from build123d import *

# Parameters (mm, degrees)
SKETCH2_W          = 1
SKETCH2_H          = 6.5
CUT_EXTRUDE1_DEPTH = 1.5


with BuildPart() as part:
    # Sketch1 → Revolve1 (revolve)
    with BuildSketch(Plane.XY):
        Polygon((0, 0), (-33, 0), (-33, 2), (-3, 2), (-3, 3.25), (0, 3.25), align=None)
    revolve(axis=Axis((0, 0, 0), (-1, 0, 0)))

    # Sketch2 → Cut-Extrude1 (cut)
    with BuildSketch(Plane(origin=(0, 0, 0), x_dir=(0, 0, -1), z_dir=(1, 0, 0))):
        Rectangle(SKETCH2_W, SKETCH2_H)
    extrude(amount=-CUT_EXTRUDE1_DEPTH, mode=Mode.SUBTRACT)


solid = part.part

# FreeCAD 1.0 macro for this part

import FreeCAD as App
import Part
import Sketcher
from FreeCAD import Vector
Q = App.Units.Quantity


def add_polygon(sketch, points):
    """Adds a closed chain of lines whose ends are joined by coincident constraints."""
    first, n = sketch.GeometryCount, len(points)
    for a, b in zip(points, points[1:] + points[:1]):
        sketch.addGeometry(Part.LineSegment(App.Vector(*a, 0), App.Vector(*b, 0)), False)
    for i in range(n):
        sketch.addConstraint(Sketcher.Constraint("Coincident", first + i, 2, first + (i + 1) % n, 1))

doc = App.newDocument("Part")
body = doc.addObject("PartDesign::Body", "Body")

sketch1 = doc.addObject("Sketcher::SketchObject", "Sketch")
body.addObject(sketch1)
sketch1.AttachmentSupport = (doc.XY_Plane, [""])
sketch1.MapMode = "FlatFace"
add_polygon(sketch1, [(-33, 0), (0, 0), (0, 3.2), (-3, 3.2), (-3, 2), (-33, 2)])
sketch1.addConstraint([
    Sketcher.Constraint("Horizontal", 0),
    Sketcher.Constraint("Vertical", 1),
    Sketcher.Constraint("Horizontal", 2),
    Sketcher.Constraint("Vertical", 3),
    Sketcher.Constraint("Horizontal", 4),
    Sketcher.Constraint("Vertical", 5),
    Sketcher.Constraint("Coincident", 0, 2, -1, 1),
    Sketcher.Constraint("DistanceX", 0, 1, 0, 2, Q("33 mm")),
    Sketcher.Constraint("DistanceX", 2, 2, 2, 1, Q("3 mm")),
    Sketcher.Constraint("DistanceY", 5, 2, 5, 1, Q("2 mm")),
    Sketcher.Constraint("DistanceY", 1, 1, 1, 2, Q("3.25 mm")),
])
revolution = doc.addObject("PartDesign::Revolution", "Revolution")
body.addObject(revolution)
revolution.Profile = sketch1
revolution.ReferenceAxis = (sketch1, ["H_Axis"])
revolution.Angle = 360

sketch2 = doc.addObject("Sketcher::SketchObject", "Sketch001")
body.addObject(sketch2)
sketch2.AttachmentSupport = (doc.YZ_Plane, [""])
sketch2.MapMode = "FlatFace"
add_polygon(sketch2, [(3.2, 0.5), (-3.2, 0.5), (-3.2, -0.5), (3.2, -0.5)])
sketch2.addConstraint([
    Sketcher.Constraint("Horizontal", 0),
    Sketcher.Constraint("Vertical", 1),
    Sketcher.Constraint("Horizontal", 2),
    Sketcher.Constraint("Vertical", 3),
    Sketcher.Constraint("Symmetric", 0, 2, 2, 2, -1, 1),
    Sketcher.Constraint("DistanceY", 1, 2, 1, 1, Q("1 mm")),
    Sketcher.Constraint("DistanceX", 0, 2, 0, 1, Q("6.5 mm")),
])
pocket1 = doc.addObject("PartDesign::Pocket", "Pocket")
body.addObject(pocket1)
pocket1.Profile = sketch2
pocket1.Length = 1.5

doc.recompute()
